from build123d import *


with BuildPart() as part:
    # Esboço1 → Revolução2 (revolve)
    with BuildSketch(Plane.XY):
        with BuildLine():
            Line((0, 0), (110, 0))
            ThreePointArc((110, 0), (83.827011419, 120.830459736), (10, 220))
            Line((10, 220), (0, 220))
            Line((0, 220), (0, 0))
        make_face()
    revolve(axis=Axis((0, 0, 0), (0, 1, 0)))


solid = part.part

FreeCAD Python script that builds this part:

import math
import FreeCAD as App
import Part
import Sketcher
from FreeCAD import Vector

doc = App.newDocument("Part")
body = doc.addObject("PartDesign::Body", "Body")

# Sketch on XY plane
sketch1 = body.newObject("Sketcher::SketchObject", "Sketch")
sketch1.AttachmentSupport = (doc.getObject("XY_Plane"), [""])
sketch1.MapMode = "FlatFace"
sketch1.addGeometry([
    Part.LineSegment(Vector(0, 0, 0), Vector(110, 0, 0)),
    Part.ArcOfCircle(Part.Circle(Vector(-182, 0, 0), Vector(0, 0, 1), 292), math.radians(0), math.radians(48.88791)),
    Part.LineSegment(Vector(10, 220, 0), Vector(0, 220, 0)),
    Part.LineSegment(Vector(0, 220, 0), Vector(0, 0, 0)),
], False)
sketch1.addConstraint([
    Sketcher.Constraint("Coincident", 0, 2, 1, 1),
    Sketcher.Constraint("Coincident", 1, 2, 2, 1),
    Sketcher.Constraint("Coincident", 2, 2, 3, 1),
    Sketcher.Constraint("Coincident", 3, 2, 0, 1),
    Sketcher.Constraint("Horizontal", 0),
    Sketcher.Constraint("Horizontal", 2),
    Sketcher.Constraint("Vertical", 3),
    Sketcher.Constraint("Coincident", 3, 2, -1, 1),
    Sketcher.Constraint("PointOnObject", 1, 3, -1),
    Sketcher.Constraint("Radius", 1, 292.0),
    Sketcher.Constraint("DistanceX", 0, 1, 0, 2, 110.0),
    Sketcher.Constraint("DistanceX", 2, 2, 2, 1, 10.0),
])
revolution = body.newObject("PartDesign::Revolution", "Revolution")
revolution.Profile = sketch1
revolution.ReferenceAxis = (sketch1, ["V_Axis"])
revolution.Angle = 360

doc.recompute()
